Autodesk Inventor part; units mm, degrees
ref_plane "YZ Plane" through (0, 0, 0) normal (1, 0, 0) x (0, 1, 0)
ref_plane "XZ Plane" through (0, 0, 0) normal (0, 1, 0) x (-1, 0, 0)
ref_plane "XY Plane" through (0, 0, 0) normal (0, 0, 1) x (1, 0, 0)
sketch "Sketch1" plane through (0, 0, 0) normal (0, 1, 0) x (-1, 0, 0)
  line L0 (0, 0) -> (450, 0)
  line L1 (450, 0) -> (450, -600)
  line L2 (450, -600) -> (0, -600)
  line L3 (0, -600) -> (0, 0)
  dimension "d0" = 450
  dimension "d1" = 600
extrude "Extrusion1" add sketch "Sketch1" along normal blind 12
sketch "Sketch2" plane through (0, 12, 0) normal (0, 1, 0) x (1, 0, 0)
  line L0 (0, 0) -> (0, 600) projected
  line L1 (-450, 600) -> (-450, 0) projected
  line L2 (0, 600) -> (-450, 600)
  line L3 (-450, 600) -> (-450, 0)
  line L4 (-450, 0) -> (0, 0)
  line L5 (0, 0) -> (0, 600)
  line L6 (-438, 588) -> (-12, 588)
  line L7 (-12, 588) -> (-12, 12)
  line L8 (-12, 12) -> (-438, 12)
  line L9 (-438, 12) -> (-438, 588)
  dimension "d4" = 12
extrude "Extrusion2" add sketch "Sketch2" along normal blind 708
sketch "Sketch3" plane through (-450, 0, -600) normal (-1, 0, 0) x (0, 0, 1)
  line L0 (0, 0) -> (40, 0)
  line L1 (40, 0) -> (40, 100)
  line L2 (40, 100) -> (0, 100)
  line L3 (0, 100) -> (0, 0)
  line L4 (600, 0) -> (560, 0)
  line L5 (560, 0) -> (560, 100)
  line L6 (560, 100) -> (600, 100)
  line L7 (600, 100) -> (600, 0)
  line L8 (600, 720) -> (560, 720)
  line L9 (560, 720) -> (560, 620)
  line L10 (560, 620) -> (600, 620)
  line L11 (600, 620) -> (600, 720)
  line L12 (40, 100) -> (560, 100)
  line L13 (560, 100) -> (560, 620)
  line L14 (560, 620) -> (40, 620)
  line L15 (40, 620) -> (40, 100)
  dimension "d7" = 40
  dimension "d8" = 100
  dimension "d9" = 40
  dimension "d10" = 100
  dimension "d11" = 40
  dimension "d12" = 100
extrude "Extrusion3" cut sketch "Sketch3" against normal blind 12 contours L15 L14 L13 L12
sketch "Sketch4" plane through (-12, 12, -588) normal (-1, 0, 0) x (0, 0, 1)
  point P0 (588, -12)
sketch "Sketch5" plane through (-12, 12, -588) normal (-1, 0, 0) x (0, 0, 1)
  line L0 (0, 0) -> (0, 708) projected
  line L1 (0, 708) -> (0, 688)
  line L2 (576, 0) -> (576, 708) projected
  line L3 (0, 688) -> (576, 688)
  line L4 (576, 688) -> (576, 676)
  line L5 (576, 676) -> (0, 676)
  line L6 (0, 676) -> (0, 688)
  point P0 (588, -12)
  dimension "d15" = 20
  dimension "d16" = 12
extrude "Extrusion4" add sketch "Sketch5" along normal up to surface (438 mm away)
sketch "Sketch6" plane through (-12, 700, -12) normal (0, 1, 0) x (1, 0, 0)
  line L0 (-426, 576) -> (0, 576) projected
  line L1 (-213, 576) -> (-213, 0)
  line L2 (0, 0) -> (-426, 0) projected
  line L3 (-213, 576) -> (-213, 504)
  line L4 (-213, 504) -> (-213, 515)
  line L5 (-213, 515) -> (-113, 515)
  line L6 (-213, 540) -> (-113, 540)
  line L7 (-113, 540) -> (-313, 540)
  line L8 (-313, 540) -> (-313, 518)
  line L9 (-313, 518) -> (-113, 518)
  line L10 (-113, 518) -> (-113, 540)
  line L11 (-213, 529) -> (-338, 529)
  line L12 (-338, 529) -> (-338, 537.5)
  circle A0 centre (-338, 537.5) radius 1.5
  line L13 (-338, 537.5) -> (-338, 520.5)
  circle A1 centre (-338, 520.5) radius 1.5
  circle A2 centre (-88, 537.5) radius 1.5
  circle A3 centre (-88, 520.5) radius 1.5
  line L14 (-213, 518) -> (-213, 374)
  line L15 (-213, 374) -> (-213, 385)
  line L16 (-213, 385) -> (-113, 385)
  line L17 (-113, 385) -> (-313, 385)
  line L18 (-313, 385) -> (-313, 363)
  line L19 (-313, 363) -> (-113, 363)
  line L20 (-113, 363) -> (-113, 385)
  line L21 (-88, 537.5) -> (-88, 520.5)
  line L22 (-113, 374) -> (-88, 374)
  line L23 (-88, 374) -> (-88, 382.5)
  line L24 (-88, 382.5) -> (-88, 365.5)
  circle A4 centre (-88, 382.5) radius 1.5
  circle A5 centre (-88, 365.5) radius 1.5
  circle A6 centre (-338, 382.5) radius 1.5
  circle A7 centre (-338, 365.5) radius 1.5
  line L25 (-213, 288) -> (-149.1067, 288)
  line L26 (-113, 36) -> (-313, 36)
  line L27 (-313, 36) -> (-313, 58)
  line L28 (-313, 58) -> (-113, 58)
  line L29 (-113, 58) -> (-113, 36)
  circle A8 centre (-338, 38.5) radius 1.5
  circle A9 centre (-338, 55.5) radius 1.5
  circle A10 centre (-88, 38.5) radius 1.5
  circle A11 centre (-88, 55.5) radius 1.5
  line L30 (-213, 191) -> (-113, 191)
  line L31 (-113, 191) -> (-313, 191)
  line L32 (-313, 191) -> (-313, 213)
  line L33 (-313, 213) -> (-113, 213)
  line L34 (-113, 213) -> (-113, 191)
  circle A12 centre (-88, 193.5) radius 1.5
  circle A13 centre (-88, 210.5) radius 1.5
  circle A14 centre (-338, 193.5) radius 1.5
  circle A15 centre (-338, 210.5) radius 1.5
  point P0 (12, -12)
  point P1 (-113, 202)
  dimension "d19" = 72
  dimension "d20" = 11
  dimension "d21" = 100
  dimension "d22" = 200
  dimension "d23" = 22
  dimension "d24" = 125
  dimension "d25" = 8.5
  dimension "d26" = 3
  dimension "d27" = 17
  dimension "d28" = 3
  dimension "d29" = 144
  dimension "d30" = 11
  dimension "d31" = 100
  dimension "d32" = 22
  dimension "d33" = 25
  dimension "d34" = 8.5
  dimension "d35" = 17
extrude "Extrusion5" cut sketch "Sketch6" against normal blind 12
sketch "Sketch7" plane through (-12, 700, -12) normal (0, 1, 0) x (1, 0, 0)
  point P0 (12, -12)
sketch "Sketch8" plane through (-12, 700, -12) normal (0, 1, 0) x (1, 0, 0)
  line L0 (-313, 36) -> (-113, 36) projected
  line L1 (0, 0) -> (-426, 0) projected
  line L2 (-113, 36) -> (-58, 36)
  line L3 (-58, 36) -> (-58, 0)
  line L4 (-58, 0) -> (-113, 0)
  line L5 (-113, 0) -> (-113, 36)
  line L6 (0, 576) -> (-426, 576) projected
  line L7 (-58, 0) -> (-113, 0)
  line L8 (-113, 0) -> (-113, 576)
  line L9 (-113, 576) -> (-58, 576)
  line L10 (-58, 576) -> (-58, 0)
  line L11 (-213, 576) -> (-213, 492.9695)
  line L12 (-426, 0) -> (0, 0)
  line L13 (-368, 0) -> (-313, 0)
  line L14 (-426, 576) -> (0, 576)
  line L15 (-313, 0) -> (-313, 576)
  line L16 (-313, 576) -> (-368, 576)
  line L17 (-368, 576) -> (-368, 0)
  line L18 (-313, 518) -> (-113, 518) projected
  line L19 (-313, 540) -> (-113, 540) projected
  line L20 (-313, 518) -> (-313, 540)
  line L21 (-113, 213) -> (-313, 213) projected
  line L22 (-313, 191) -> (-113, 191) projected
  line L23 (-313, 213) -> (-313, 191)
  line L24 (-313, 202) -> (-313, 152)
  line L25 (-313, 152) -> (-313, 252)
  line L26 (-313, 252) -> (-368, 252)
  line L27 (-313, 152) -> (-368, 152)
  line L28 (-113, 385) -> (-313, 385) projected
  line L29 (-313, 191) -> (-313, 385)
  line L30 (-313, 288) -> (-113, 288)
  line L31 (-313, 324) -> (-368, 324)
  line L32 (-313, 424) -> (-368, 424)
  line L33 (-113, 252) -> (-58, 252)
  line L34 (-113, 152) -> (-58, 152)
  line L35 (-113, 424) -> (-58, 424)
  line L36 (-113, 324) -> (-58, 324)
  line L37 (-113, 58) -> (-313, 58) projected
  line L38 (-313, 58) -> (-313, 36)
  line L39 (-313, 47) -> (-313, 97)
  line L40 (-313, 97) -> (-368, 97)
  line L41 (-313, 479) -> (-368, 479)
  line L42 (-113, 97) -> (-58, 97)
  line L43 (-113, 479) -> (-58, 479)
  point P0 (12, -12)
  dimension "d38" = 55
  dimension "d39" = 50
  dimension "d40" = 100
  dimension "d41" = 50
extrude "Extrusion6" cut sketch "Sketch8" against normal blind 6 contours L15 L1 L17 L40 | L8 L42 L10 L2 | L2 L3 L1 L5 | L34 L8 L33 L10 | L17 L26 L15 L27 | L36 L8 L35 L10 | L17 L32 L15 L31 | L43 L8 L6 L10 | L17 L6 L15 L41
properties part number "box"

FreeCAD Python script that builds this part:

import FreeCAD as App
import Part
import Sketcher

V = App.Vector

doc = App.newDocument("Part")
body = doc.addObject("PartDesign::Body", "Body")

sketch1 = body.newObject("Sketcher::SketchObject", "Sketch")
sketch1.AttachmentSupport = (doc.getObject("XZ_Plane"), [""])
sketch1.MapMode = "FlatFace"
sketch1.addGeometry(Part.LineSegment(V(-450, 0, 0), V(0, 0, 0)), False)
sketch1.addGeometry(Part.LineSegment(V(0, 0, 0), V(0, -600, 0)), False)
sketch1.addGeometry(Part.LineSegment(V(0, -600, 0), V(-450, -600, 0)), False)
sketch1.addGeometry(Part.LineSegment(V(-450, -600, 0), V(-450, 0, 0)), False)
sketch1.addConstraint(Sketcher.Constraint("Coincident", 0, 2, 1, 1))
sketch1.addConstraint(Sketcher.Constraint("Coincident", 1, 2, 2, 1))
sketch1.addConstraint(Sketcher.Constraint("Coincident", 2, 2, 3, 1))
sketch1.addConstraint(Sketcher.Constraint("Coincident", 3, 2, 0, 1))
sketch1.addConstraint(Sketcher.Constraint("Horizontal", 0))
sketch1.addConstraint(Sketcher.Constraint("Vertical", 1))
sketch1.addConstraint(Sketcher.Constraint("Horizontal", 2))
sketch1.addConstraint(Sketcher.Constraint("Vertical", 3))
sketch1.addConstraint(Sketcher.Constraint("Coincident", 0, 2, -1, 1))
sketch1.addConstraint(Sketcher.Constraint("DistanceX", 0, 1, 0, 2, 450.0))
sketch1.addConstraint(Sketcher.Constraint("DistanceY", 1, 2, 1, 1, 600.0))
pad1 = body.newObject("PartDesign::Pad", "Pad")
pad1.Profile = sketch1
pad1.Length = 12
pad1.Reversed = True

sketch2 = body.newObject("Sketcher::SketchObject", "Sketch001")
sketch2.AttachmentSupport = (doc.getObject("XZ_Plane"), [""])
sketch2.MapMode = "FlatFace"
sketch2.AttachmentOffset = App.Placement(V(0, 0, -12), App.Rotation())
sketch2.addGeometry(Part.LineSegment(V(-450, 0, 0), V(0, 0, 0)), False)
sketch2.addGeometry(Part.LineSegment(V(0, 0, 0), V(0, -600, 0)), False)
sketch2.addGeometry(Part.LineSegment(V(0, -600, 0), V(-450, -600, 0)), False)
sketch2.addGeometry(Part.LineSegment(V(-450, -600, 0), V(-450, 0, 0)), False)
sketch2.addGeometry(Part.LineSegment(V(-438, -12, 0), V(-438, -588, 0)), False)
sketch2.addGeometry(Part.LineSegment(V(-438, -588, 0), V(-12, -588, 0)), False)
sketch2.addGeometry(Part.LineSegment(V(-12, -588, 0), V(-12, -12, 0)), False)
sketch2.addGeometry(Part.LineSegment(V(-12, -12, 0), V(-438, -12, 0)), False)
sketch2.addConstraint(Sketcher.Constraint("Coincident", 0, 2, 1, 1))
sketch2.addConstraint(Sketcher.Constraint("Coincident", 1, 2, 2, 1))
sketch2.addConstraint(Sketcher.Constraint("Coincident", 2, 2, 3, 1))
sketch2.addConstraint(Sketcher.Constraint("Coincident", 3, 2, 0, 1))
sketch2.addConstraint(Sketcher.Constraint("Coincident", 4, 2, 5, 1))
sketch2.addConstraint(Sketcher.Constraint("Coincident", 5, 2, 6, 1))
sketch2.addConstraint(Sketcher.Constraint("Coincident", 6, 2, 7, 1))
sketch2.addConstraint(Sketcher.Constraint("Coincident", 7, 2, 4, 1))
sketch2.addConstraint(Sketcher.Constraint("Horizontal", 0))
sketch2.addConstraint(Sketcher.Constraint("Vertical", 1))
sketch2.addConstraint(Sketcher.Constraint("Horizontal", 2))
sketch2.addConstraint(Sketcher.Constraint("Vertical", 3))
sketch2.addConstraint(Sketcher.Constraint("Vertical", 4))
sketch2.addConstraint(Sketcher.Constraint("Horizontal", 5))
sketch2.addConstraint(Sketcher.Constraint("Vertical", 6))
sketch2.addConstraint(Sketcher.Constraint("Horizontal", 7))
sketch2.addConstraint(Sketcher.Constraint("Coincident", 0, 2, -1, 1))
sketch2.addConstraint(Sketcher.Constraint("DistanceX", 5, 2, -1, 1, 12.0))
sketch2.addConstraint(Sketcher.Constraint("DistanceY", 6, 2, -1, 1, 12.0))
sketch2.addConstraint(Sketcher.Constraint("DistanceX", 2, 2, 4, 2, 12.0))
sketch2.addConstraint(Sketcher.Constraint("DistanceY", 2, 2, 4, 2, 12.0))
sketch2.addConstraint(Sketcher.Constraint("DistanceX", 0, 1, 0, 2, 450.0))
sketch2.addConstraint(Sketcher.Constraint("DistanceY", 1, 2, 1, 1, 600.0))
pad2 = body.newObject("PartDesign::Pad", "Pad001")
pad2.Profile = sketch2
pad2.Length = 708
pad2.Reversed = True

sketch3 = body.newObject("Sketcher::SketchObject", "Sketch002")
sketch3.AttachmentSupport = (doc.getObject("YZ_Plane"), [""])
sketch3.MapMode = "FlatFace"
sketch3.AttachmentOffset = App.Placement(V(0, 0, -450), App.Rotation())
sketch3.addGeometry(Part.LineSegment(V(620, -560, 0), V(100, -560, 0)), False)
sketch3.addGeometry(Part.LineSegment(V(100, -560, 0), V(100, -40, 0)), False)
sketch3.addGeometry(Part.LineSegment(V(100, -40, 0), V(620, -40, 0)), False)
sketch3.addGeometry(Part.LineSegment(V(620, -40, 0), V(620, -560, 0)), False)
sketch3.addConstraint(Sketcher.Constraint("Coincident", 0, 2, 1, 1))
sketch3.addConstraint(Sketcher.Constraint("Coincident", 1, 2, 2, 1))
sketch3.addConstraint(Sketcher.Constraint("Coincident", 2, 2, 3, 1))
sketch3.addConstraint(Sketcher.Constraint("Coincident", 3, 2, 0, 1))
sketch3.addConstraint(Sketcher.Constraint("Horizontal", 0))
sketch3.addConstraint(Sketcher.Constraint("Vertical", 1))
sketch3.addConstraint(Sketcher.Constraint("Horizontal", 2))
sketch3.addConstraint(Sketcher.Constraint("Vertical", 3))
sketch3.addConstraint(Sketcher.Constraint("Equal", 2, 1))
sketch3.addConstraint(Sketcher.Constraint("DistanceX", -1, 1, 0, 2, 100.0))
sketch3.addConstraint(Sketcher.Constraint("DistanceY", 1, 2, -1, 1, 40.0))
sketch3.addConstraint(Sketcher.Constraint("DistanceX", 0, 2, 0, 1, 520.0))
pocket1 = body.newObject("PartDesign::Pocket", "Pocket")
pocket1.Profile = sketch3
pocket1.Length = 12
pocket1.Reversed = True

sketch4 = body.newObject("Sketcher::SketchObject", "Sketch003")
sketch4.AttachmentSupport = (doc.getObject("YZ_Plane"), [""])
sketch4.MapMode = "FlatFace"
sketch4.AttachmentOffset = App.Placement(V(0, 0, -12), App.Rotation())
sketch4.addGeometry(Part.LineSegment(V(700, -588, 0), V(688, -588, 0)), False)
sketch4.addGeometry(Part.LineSegment(V(688, -588, 0), V(688, -12, 0)), False)
sketch4.addGeometry(Part.LineSegment(V(688, -12, 0), V(700, -12, 0)), False)
sketch4.addGeometry(Part.LineSegment(V(700, -12, 0), V(700, -588, 0)), False)
sketch4.addConstraint(Sketcher.Constraint("Coincident", 0, 2, 1, 1))
sketch4.addConstraint(Sketcher.Constraint("Coincident", 1, 2, 2, 1))
sketch4.addConstraint(Sketcher.Constraint("Coincident", 2, 2, 3, 1))
sketch4.addConstraint(Sketcher.Constraint("Coincident", 3, 2, 0, 1))
sketch4.addConstraint(Sketcher.Constraint("Horizontal", 0))
sketch4.addConstraint(Sketcher.Constraint("Vertical", 1))
sketch4.addConstraint(Sketcher.Constraint("Horizontal", 2))
sketch4.addConstraint(Sketcher.Constraint("Vertical", 3))
sketch4.addConstraint(Sketcher.Constraint("DistanceX", 0, 2, 0, 1, 12.0))
sketch4.addConstraint(Sketcher.Constraint("DistanceY", 1, 2, -1, 1, 12.0))
sketch4.addConstraint(Sketcher.Constraint("DistanceY", 1, 1, 1, 2, 576.0))
sketch4.addConstraint(Sketcher.Constraint("DistanceX", -1, 1, 0, 2, 688.0))
pad3 = body.newObject("PartDesign::Pad", "Pad002")
pad3.Profile = sketch4
pad3.Length = 438
pad3.Reversed = True

sketch5 = body.newObject("Sketcher::SketchObject", "Sketch004")
sketch5.AttachmentSupport = (doc.getObject("XZ_Plane"), [""])
sketch5.MapMode = "FlatFace"
sketch5.AttachmentOffset = App.Placement(V(0, 0, -700), App.Rotation())
sketch5.addGeometry(Part.LineSegment(V(-125, -552, 0), V(-325, -552, 0)), False)
sketch5.addGeometry(Part.LineSegment(V(-325, -552, 0), V(-325, -530, 0)), False)
sketch5.addGeometry(Part.LineSegment(V(-325, -530, 0), V(-125, -530, 0)), False)
sketch5.addGeometry(Part.LineSegment(V(-125, -530, 0), V(-125, -552, 0)), False)
sketch5.addGeometry(Part.Circle(V(-100, -394.5, 0), V(0, 0, 1), 1.5), False)
sketch5.addGeometry(Part.Circle(V(-100, -377.5, 0), V(0, 0, 1), 1.5), False)
sketch5.addGeometry(Part.LineSegment(V(-125, -70, 0), V(-325, -70, 0)), False)
sketch5.addGeometry(Part.LineSegment(V(-325, -70, 0), V(-325, -48, 0)), False)
sketch5.addGeometry(Part.LineSegment(V(-325, -48, 0), V(-125, -48, 0)), False)
sketch5.addGeometry(Part.LineSegment(V(-125, -48, 0), V(-125, -70, 0)), False)
sketch5.addGeometry(Part.LineSegment(V(-125, -225, 0), V(-325, -225, 0)), False)
sketch5.addGeometry(Part.LineSegment(V(-325, -225, 0), V(-325, -203, 0)), False)
sketch5.addGeometry(Part.LineSegment(V(-325, -203, 0), V(-125, -203, 0)), False)
sketch5.addGeometry(Part.LineSegment(V(-125, -203, 0), V(-125, -225, 0)), False)
sketch5.addGeometry(Part.LineSegment(V(-125, -397, 0), V(-325, -397, 0)), False)
sketch5.addGeometry(Part.LineSegment(V(-325, -397, 0), V(-325, -375, 0)), False)
sketch5.addGeometry(Part.LineSegment(V(-325, -375, 0), V(-125, -375, 0)), False)
sketch5.addGeometry(Part.LineSegment(V(-125, -375, 0), V(-125, -397, 0)), False)
sketch5.addGeometry(Part.Circle(V(-350, -532.5, 0), V(0, 0, 1), 1.5), False)
sketch5.addGeometry(Part.Circle(V(-350, -549.5, 0), V(0, 0, 1), 1.5), False)
sketch5.addGeometry(Part.Circle(V(-100, -549.5, 0), V(0, 0, 1), 1.5), False)
sketch5.addGeometry(Part.Circle(V(-100, -532.5, 0), V(0, 0, 1), 1.5), False)
sketch5.addGeometry(Part.Circle(V(-350, -394.5, 0), V(0, 0, 1), 1.5), False)
sketch5.addGeometry(Part.Circle(V(-350, -377.5, 0), V(0, 0, 1), 1.5), False)
sketch5.addGeometry(Part.Circle(V(-350, -50.5, 0), V(0, 0, 1), 1.5), False)
sketch5.addGeometry(Part.Circle(V(-350, -67.5, 0), V(0, 0, 1), 1.5), False)
sketch5.addGeometry(Part.Circle(V(-100, -50.5, 0), V(0, 0, 1), 1.5), False)
sketch5.addGeometry(Part.Circle(V(-100, -67.5, 0), V(0, 0, 1), 1.5), False)
sketch5.addGeometry(Part.Circle(V(-100, -205.5, 0), V(0, 0, 1), 1.5), False)
sketch5.addGeometry(Part.Circle(V(-100, -222.5, 0), V(0, 0, 1), 1.5), False)
sketch5.addGeometry(Part.Circle(V(-350, -205.5, 0), V(0, 0, 1), 1.5), False)
sketch5.addGeometry(Part.Circle(V(-350, -222.5, 0), V(0, 0, 1), 1.5), False)
sketch5.addConstraint(Sketcher.Constraint("Coincident", 0, 2, 1, 1))
sketch5.addConstraint(Sketcher.Constraint("Coincident", 1, 2, 2, 1))
sketch5.addConstraint(Sketcher.Constraint("Coincident", 2, 2, 3, 1))
sketch5.addConstraint(Sketcher.Constraint("Coincident", 3, 2, 0, 1))
sketch5.addConstraint(Sketcher.Constraint("Coincident", 6, 2, 7, 1))
sketch5.addConstraint(Sketcher.Constraint("Coincident", 7, 2, 8, 1))
sketch5.addConstraint(Sketcher.Constraint("Coincident", 8, 2, 9, 1))
sketch5.addConstraint(Sketcher.Constraint("Coincident", 9, 2, 6, 1))
sketch5.addConstraint(Sketcher.Constraint("Coincident", 10, 2, 11, 1))
sketch5.addConstraint(Sketcher.Constraint("Coincident", 11, 2, 12, 1))
sketch5.addConstraint(Sketcher.Constraint("Coincident", 12, 2, 13, 1))
sketch5.addConstraint(Sketcher.Constraint("Coincident", 13, 2, 10, 1))
sketch5.addConstraint(Sketcher.Constraint("Coincident", 14, 2, 15, 1))
sketch5.addConstraint(Sketcher.Constraint("Coincident", 15, 2, 16, 1))
sketch5.addConstraint(Sketcher.Constraint("Coincident", 16, 2, 17, 1))
sketch5.addConstraint(Sketcher.Constraint("Coincident", 17, 2, 14, 1))
sketch5.addConstraint(Sketcher.Constraint("Horizontal", 0))
sketch5.addConstraint(Sketcher.Constraint("Vertical", 1))
sketch5.addConstraint(Sketcher.Constraint("Horizontal", 2))
sketch5.addConstraint(Sketcher.Constraint("Vertical", 3))
sketch5.addConstraint(Sketcher.Constraint("Horizontal", 6))
sketch5.addConstraint(Sketcher.Constraint("Vertical", 7))
sketch5.addConstraint(Sketcher.Constraint("Horizontal", 8))
sketch5.addConstraint(Sketcher.Constraint("Vertical", 9))
sketch5.addConstraint(Sketcher.Constraint("Horizontal", 10))
sketch5.addConstraint(Sketcher.Constraint("Vertical", 11))
sketch5.addConstraint(Sketcher.Constraint("Horizontal", 12))
sketch5.addConstraint(Sketcher.Constraint("Vertical", 13))
sketch5.addConstraint(Sketcher.Constraint("Horizontal", 14))
sketch5.addConstraint(Sketcher.Constraint("Vertical", 15))
sketch5.addConstraint(Sketcher.Constraint("Horizontal", 16))
sketch5.addConstraint(Sketcher.Constraint("Vertical", 17))
sketch5.addConstraint(Sketcher.Constraint("Equal", 4, 5))
sketch5.addConstraint(Sketcher.Constraint("Equal", 5, 18))
sketch5.addConstraint(Sketcher.Constraint("Equal", 18, 19))
sketch5.addConstraint(Sketcher.Constraint("Equal", 19, 20))
sketch5.addConstraint(Sketcher.Constraint("Equal", 20, 21))
sketch5.addConstraint(Sketcher.Constraint("Equal", 21, 22))
sketch5.addConstraint(Sketcher.Constraint("Equal", 22, 23))
sketch5.addConstraint(Sketcher.Constraint("Equal", 23, 24))
sketch5.addConstraint(Sketcher.Constraint("Equal", 24, 25))
sketch5.addConstraint(Sketcher.Constraint("Equal", 25, 26))
sketch5.addConstraint(Sketcher.Constraint("Equal", 26, 27))
sketch5.addConstraint(Sketcher.Constraint("Equal", 27, 28))
sketch5.addConstraint(Sketcher.Constraint("Equal", 28, 29))
sketch5.addConstraint(Sketcher.Constraint("Equal", 29, 30))
sketch5.addConstraint(Sketcher.Constraint("Equal", 30, 31))
sketch5.addConstraint(Sketcher.Constraint("Horizontal", 19, 3, 20, 3))
sketch5.addConstraint(Sketcher.Constraint("Horizontal", 18, 3, 21, 3))
sketch5.addConstraint(Sketcher.Constraint("Horizontal", 4, 3, 22, 3))
sketch5.addConstraint(Sketcher.Constraint("Horizontal", 5, 3, 23, 3))
sketch5.addConstraint(Sketcher.Constraint("Horizontal", 24, 3, 26, 3))
sketch5.addConstraint(Sketcher.Constraint("Horizontal", 25, 3, 27, 3))
sketch5.addConstraint(Sketcher.Constraint("Horizontal", 28, 3, 30, 3))
sketch5.addConstraint(Sketcher.Constraint("Horizontal", 29, 3, 31, 3))
sketch5.addConstraint(Sketcher.Constraint("Vertical", 4, 3, 5, 3))
sketch5.addConstraint(Sketcher.Constraint("Vertical", 18, 3, 19, 3))
sketch5.addConstraint(Sketcher.Constraint("Vertical", 5, 3, 20, 3))
sketch5.addConstraint(Sketcher.Constraint("Vertical", 20, 3, 21, 3))
sketch5.addConstraint(Sketcher.Constraint("Vertical", 19, 3, 22, 3))
sketch5.addConstraint(Sketcher.Constraint("Vertical", 22, 3, 23, 3))
sketch5.addConstraint(Sketcher.Constraint("Vertical", 23, 3, 24, 3))
sketch5.addConstraint(Sketcher.Constraint("Vertical", 24, 3, 25, 3))
sketch5.addConstraint(Sketcher.Constraint("Vertical", 21, 3, 26, 3))
sketch5.addConstraint(Sketcher.Constraint("Vertical", 26, 3, 27, 3))
sketch5.addConstraint(Sketcher.Constraint("Vertical", 27, 3, 28, 3))
sketch5.addConstraint(Sketcher.Constraint("Vertical", 28, 3, 29, 3))
sketch5.addConstraint(Sketcher.Constraint("Vertical", 25, 3, 30, 3))
sketch5.addConstraint(Sketcher.Constraint("Vertical", 30, 3, 31, 3))
sketch5.addConstraint(Sketcher.Constraint("Vertical", 1, 2, 6, 2))
sketch5.addConstraint(Sketcher.Constraint("Vertical", 3, 2, 8, 2))
sketch5.addConstraint(Sketcher.Constraint("Vertical", 7, 2, 10, 2))
sketch5.addConstraint(Sketcher.Constraint("Vertical", 9, 2, 12, 2))
sketch5.addConstraint(Sketcher.Constraint("Vertical", 11, 2, 14, 2))
sketch5.addConstraint(Sketcher.Constraint("Vertical", 13, 2, 16, 2))
sketch5.addConstraint(Sketcher.Constraint("Equal", 3, 7))
sketch5.addConstraint(Sketcher.Constraint("Equal", 9, 11))
sketch5.addConstraint(Sketcher.Constraint("Equal", 13, 15))
sketch5.addConstraint(Sketcher.Constraint("Diameter", 4, 3.0))
sketch5.addConstraint(Sketcher.Constraint("DistanceX", 0, 2, 0, 1, 200.0))
sketch5.addConstraint(Sketcher.Constraint("DistanceY", 1, 1, 1, 2, 22.0))
sketch5.addConstraint(Sketcher.Constraint("DistanceX", 4, 3, -1, 1, 100.0))
sketch5.addConstraint(Sketcher.Constraint("DistanceX", 2, 2, -1, 1, 125.0))
sketch5.addConstraint(Sketcher.Constraint("DistanceY", 4, 3, 5, 3, 17.0))
sketch5.addConstraint(Sketcher.Constraint("DistanceY", 19, 3, 18, 3, 17.0))
sketch5.addConstraint(Sketcher.Constraint("DistanceY", 25, 3, 24, 3, 17.0))
sketch5.addConstraint(Sketcher.Constraint("DistanceY", 29, 3, 28, 3, 17.0))
sketch5.addConstraint(Sketcher.Constraint("DistanceX", 19, 3, 0, 2, 25.0))
sketch5.addConstraint(Sketcher.Constraint("DistanceY", 0, 2, -1, 1, 552.0))
sketch5.addConstraint(Sketcher.Constraint("DistanceY", 6, 2, -1, 1, 70.0))
sketch5.addConstraint(Sketcher.Constraint("DistanceY", 10, 2, -1, 1, 225.0))
sketch5.addConstraint(Sketcher.Constraint("DistanceY", 14, 2, -1, 1, 397.0))
sketch5.addConstraint(Sketcher.Constraint("DistanceY", 18, 3, 4, 3, 138.0))
sketch5.addConstraint(Sketcher.Constraint("DistanceY", 23, 3, 24, 3, 327.0))
sketch5.addConstraint(Sketcher.Constraint("DistanceY", 28, 3, 27, 3, 138.0))
sketch5.addConstraint(Sketcher.Constraint("DistanceY", 4, 3, -1, 1, 394.5))
pocket2 = body.newObject("PartDesign::Pocket", "Pocket001")
pocket2.Profile = sketch5
pocket2.Length = 12
pocket2.Reversed = True

sketch6 = body.newObject("Sketcher::SketchObject", "Sketch005")
sketch6.AttachmentSupport = (doc.getObject("XZ_Plane"), [""])
sketch6.MapMode = "FlatFace"
sketch6.AttachmentOffset = App.Placement(V(0, 0, -700), App.Rotation())
sketch6.addGeometry(Part.LineSegment(V(-325, -12, 0), V(-325, -109, 0)), False)
sketch6.addGeometry(Part.LineSegment(V(-325, -109, 0), V(-380, -109, 0)), False)
sketch6.addGeometry(Part.LineSegment(V(-380, -109, 0), V(-380, -12, 0)), False)
sketch6.addGeometry(Part.LineSegment(V(-380, -12, 0), V(-325, -12, 0)), False)
sketch6.addGeometry(Part.LineSegment(V(-125, -12, 0), V(-70, -12, 0)), False)
sketch6.addGeometry(Part.LineSegment(V(-70, -12, 0), V(-70, -109, 0)), False)
sketch6.addGeometry(Part.LineSegment(V(-70, -109, 0), V(-125, -109, 0)), False)
sketch6.addGeometry(Part.LineSegment(V(-125, -109, 0), V(-125, -12, 0)), False)
sketch6.addGeometry(Part.LineSegment(V(-125, -164, 0), V(-70, -164, 0)), False)
sketch6.addGeometry(Part.LineSegment(V(-70, -164, 0), V(-70, -264, 0)), False)
sketch6.addGeometry(Part.LineSegment(V(-70, -264, 0), V(-125, -264, 0)), False)
sketch6.addGeometry(Part.LineSegment(V(-125, -264, 0), V(-125, -164, 0)), False)
sketch6.addGeometry(Part.LineSegment(V(-380, -264, 0), V(-380, -164, 0)), False)
sketch6.addGeometry(Part.LineSegment(V(-380, -164, 0), V(-325, -164, 0)), False)
sketch6.addGeometry(Part.LineSegment(V(-325, -164, 0), V(-325, -264, 0)), False)
sketch6.addGeometry(Part.LineSegment(V(-325, -264, 0), V(-380, -264, 0)), False)
sketch6.addGeometry(Part.LineSegment(V(-125, -336, 0), V(-70, -336, 0)), False)
sketch6.addGeometry(Part.LineSegment(V(-70, -336, 0), V(-70, -436, 0)), False)
sketch6.addGeometry(Part.LineSegment(V(-70, -436, 0), V(-125, -436, 0)), False)
sketch6.addGeometry(Part.LineSegment(V(-125, -436, 0), V(-125, -336, 0)), False)
sketch6.addGeometry(Part.LineSegment(V(-380, -436, 0), V(-380, -336, 0)), False)
sketch6.addGeometry(Part.LineSegment(V(-380, -336, 0), V(-325, -336, 0)), False)
sketch6.addGeometry(Part.LineSegment(V(-325, -336, 0), V(-325, -436, 0)), False)
sketch6.addGeometry(Part.LineSegment(V(-325, -436, 0), V(-380, -436, 0)), False)
sketch6.addGeometry(Part.LineSegment(V(-125, -491, 0), V(-70, -491, 0)), False)
sketch6.addGeometry(Part.LineSegment(V(-70, -491, 0), V(-70, -588, 0)), False)
sketch6.addGeometry(Part.LineSegment(V(-70, -588, 0), V(-125, -588, 0)), False)
sketch6.addGeometry(Part.LineSegment(V(-125, -588, 0), V(-125, -491, 0)), False)
sketch6.addGeometry(Part.LineSegment(V(-380, -588, 0), V(-380, -491, 0)), False)
sketch6.addGeometry(Part.LineSegment(V(-380, -491, 0), V(-325, -491, 0)), False)
sketch6.addGeometry(Part.LineSegment(V(-325, -491, 0), V(-325, -588, 0)), False)
sketch6.addGeometry(Part.LineSegment(V(-325, -588, 0), V(-380, -588, 0)), False)
sketch6.addConstraint(Sketcher.Constraint("Coincident", 0, 2, 1, 1))
sketch6.addConstraint(Sketcher.Constraint("Coincident", 1, 2, 2, 1))
sketch6.addConstraint(Sketcher.Constraint("Coincident", 2, 2, 3, 1))
sketch6.addConstraint(Sketcher.Constraint("Coincident", 3, 2, 0, 1))
sketch6.addConstraint(Sketcher.Constraint("Coincident", 4, 2, 5, 1))
sketch6.addConstraint(Sketcher.Constraint("Coincident", 5, 2, 6, 1))
sketch6.addConstraint(Sketcher.Constraint("Coincident", 6, 2, 7, 1))
sketch6.addConstraint(Sketcher.Constraint("Coincident", 7, 2, 4, 1))
sketch6.addConstraint(Sketcher.Constraint("Coincident", 8, 2, 9, 1))
sketch6.addConstraint(Sketcher.Constraint("Coincident", 9, 2, 10, 1))
sketch6.addConstraint(Sketcher.Constraint("Coincident", 10, 2, 11, 1))
sketch6.addConstraint(Sketcher.Constraint("Coincident", 11, 2, 8, 1))
sketch6.addConstraint(Sketcher.Constraint("Coincident", 12, 2, 13, 1))
sketch6.addConstraint(Sketcher.Constraint("Coincident", 13, 2, 14, 1))
sketch6.addConstraint(Sketcher.Constraint("Coincident", 14, 2, 15, 1))
sketch6.addConstraint(Sketcher.Constraint("Coincident", 15, 2, 12, 1))
sketch6.addConstraint(Sketcher.Constraint("Coincident", 16, 2, 17, 1))
sketch6.addConstraint(Sketcher.Constraint("Coincident", 17, 2, 18, 1))
sketch6.addConstraint(Sketcher.Constraint("Coincident", 18, 2, 19, 1))
sketch6.addConstraint(Sketcher.Constraint("Coincident", 19, 2, 16, 1))
sketch6.addConstraint(Sketcher.Constraint("Coincident", 20, 2, 21, 1))
sketch6.addConstraint(Sketcher.Constraint("Coincident", 21, 2, 22, 1))
sketch6.addConstraint(Sketcher.Constraint("Coincident", 22, 2, 23, 1))
sketch6.addConstraint(Sketcher.Constraint("Coincident", 23, 2, 20, 1))
sketch6.addConstraint(Sketcher.Constraint("Coincident", 24, 2, 25, 1))
sketch6.addConstraint(Sketcher.Constraint("Coincident", 25, 2, 26, 1))
sketch6.addConstraint(Sketcher.Constraint("Coincident", 26, 2, 27, 1))
sketch6.addConstraint(Sketcher.Constraint("Coincident", 27, 2, 24, 1))
sketch6.addConstraint(Sketcher.Constraint("Coincident", 28, 2, 29, 1))
sketch6.addConstraint(Sketcher.Constraint("Coincident", 29, 2, 30, 1))
sketch6.addConstraint(Sketcher.Constraint("Coincident", 30, 2, 31, 1))
sketch6.addConstraint(Sketcher.Constraint("Coincident", 31, 2, 28, 1))
sketch6.addConstraint(Sketcher.Constraint("Vertical", 0))
sketch6.addConstraint(Sketcher.Constraint("Horizontal", 1))
sketch6.addConstraint(Sketcher.Constraint("Vertical", 2))
sketch6.addConstraint(Sketcher.Constraint("Horizontal", 3))
sketch6.addConstraint(Sketcher.Constraint("Horizontal", 4))
sketch6.addConstraint(Sketcher.Constraint("Vertical", 5))
sketch6.addConstraint(Sketcher.Constraint("Horizontal", 6))
sketch6.addConstraint(Sketcher.Constraint("Vertical", 7))
sketch6.addConstraint(Sketcher.Constraint("Horizontal", 8))
sketch6.addConstraint(Sketcher.Constraint("Vertical", 9))
sketch6.addConstraint(Sketcher.Constraint("Horizontal", 10))
sketch6.addConstraint(Sketcher.Constraint("Vertical", 11))
sketch6.addConstraint(Sketcher.Constraint("Vertical", 12))
sketch6.addConstraint(Sketcher.Constraint("Horizontal", 13))
sketch6.addConstraint(Sketcher.Constraint("Vertical", 14))
sketch6.addConstraint(Sketcher.Constraint("Horizontal", 15))
sketch6.addConstraint(Sketcher.Constraint("Horizontal", 16))
sketch6.addConstraint(Sketcher.Constraint("Vertical", 17))
sketch6.addConstraint(Sketcher.Constraint("Horizontal", 18))
sketch6.addConstraint(Sketcher.Constraint("Vertical", 19))
sketch6.addConstraint(Sketcher.Constraint("Vertical", 20))
sketch6.addConstraint(Sketcher.Constraint("Horizontal", 21))
sketch6.addConstraint(Sketcher.Constraint("Vertical", 22))
sketch6.addConstraint(Sketcher.Constraint("Horizontal", 23))
sketch6.addConstraint(Sketcher.Constraint("Horizontal", 24))
sketch6.addConstraint(Sketcher.Constraint("Vertical", 25))
sketch6.addConstraint(Sketcher.Constraint("Horizontal", 26))
sketch6.addConstraint(Sketcher.Constraint("Vertical", 27))
sketch6.addConstraint(Sketcher.Constraint("Vertical", 28))
sketch6.addConstraint(Sketcher.Constraint("Horizontal", 29))
sketch6.addConstraint(Sketcher.Constraint("Vertical", 30))
sketch6.addConstraint(Sketcher.Constraint("Horizontal", 31))
sketch6.addConstraint(Sketcher.Constraint("Horizontal", 3, 2, 4, 2))
sketch6.addConstraint(Sketcher.Constraint("Horizontal", 1, 2, 5, 2))
sketch6.addConstraint(Sketcher.Constraint("Horizontal", 11, 2, 12, 2))
sketch6.addConstraint(Sketcher.Constraint("Horizontal", 10, 2, 14, 2))
sketch6.addConstraint(Sketcher.Constraint("Horizontal", 19, 2, 20, 2))
sketch6.addConstraint(Sketcher.Constraint("Horizontal", 18, 2, 22, 2))
sketch6.addConstraint(Sketcher.Constraint("Horizontal", 27, 2, 28, 2))
sketch6.addConstraint(Sketcher.Constraint("Horizontal", 26, 2, 30, 2))
sketch6.addConstraint(Sketcher.Constraint("Vertical", 5, 2, 8, 2))
sketch6.addConstraint(Sketcher.Constraint("Vertical", 7, 2, 10, 2))
sketch6.addConstraint(Sketcher.Constraint("Vertical", 2, 2, 12, 2))
sketch6.addConstraint(Sketcher.Constraint("Vertical", 3, 2, 13, 2))
sketch6.addConstraint(Sketcher.Constraint("Vertical", 9, 2, 16, 2))
sketch6.addConstraint(Sketcher.Constraint("Vertical", 11, 2, 18, 2))
sketch6.addConstraint(Sketcher.Constraint("Vertical", 15, 2, 20, 2))
sketch6.addConstraint(Sketcher.Constraint("Vertical", 14, 2, 21, 2))
sketch6.addConstraint(Sketcher.Constraint("Vertical", 17, 2, 24, 2))
sketch6.addConstraint(Sketcher.Constraint("Vertical", 19, 2, 26, 2))
sketch6.addConstraint(Sketcher.Constraint("Vertical", 23, 2, 28, 2))
sketch6.addConstraint(Sketcher.Constraint("Vertical", 22, 2, 29, 2))
sketch6.addConstraint(Sketcher.Constraint("Equal", 3, 4))
sketch6.addConstraint(Sketcher.Constraint("Equal", 14, 17))
sketch6.addConstraint(Sketcher.Constraint("Equal", 7, 25))
sketch6.addConstraint(Sketcher.Constraint("DistanceX", 1, 2, 1, 1, 55.0))
sketch6.addConstraint(Sketcher.Constraint("DistanceY", 9, 2, 9, 1, 100.0))
sketch6.addConstraint(Sketcher.Constraint("DistanceY", 8, 2, 5, 2, 55.0))
sketch6.addConstraint(Sketcher.Constraint("DistanceY", 24, 2, 17, 2, 55.0))
sketch6.addConstraint(Sketcher.Constraint("DistanceY", 0, 2, 0, 1, 97.0))
sketch6.addConstraint(Sketcher.Constraint("DistanceX", 0, 2, -1, 1, 325.0))
sketch6.addConstraint(Sketcher.Constraint("DistanceY", 0, 2, -1, 1, 109.0))
sketch6.addConstraint(Sketcher.Constraint("DistanceX", 4, 2, -1, 1, 70.0))
sketch6.addConstraint(Sketcher.Constraint("DistanceY", 16, 2, -1, 1, 336.0))
pocket3 = body.newObject("PartDesign::Pocket", "Pocket002")
pocket3.Profile = sketch6
pocket3.Length = 6
pocket3.Reversed = True

doc.recompute()
